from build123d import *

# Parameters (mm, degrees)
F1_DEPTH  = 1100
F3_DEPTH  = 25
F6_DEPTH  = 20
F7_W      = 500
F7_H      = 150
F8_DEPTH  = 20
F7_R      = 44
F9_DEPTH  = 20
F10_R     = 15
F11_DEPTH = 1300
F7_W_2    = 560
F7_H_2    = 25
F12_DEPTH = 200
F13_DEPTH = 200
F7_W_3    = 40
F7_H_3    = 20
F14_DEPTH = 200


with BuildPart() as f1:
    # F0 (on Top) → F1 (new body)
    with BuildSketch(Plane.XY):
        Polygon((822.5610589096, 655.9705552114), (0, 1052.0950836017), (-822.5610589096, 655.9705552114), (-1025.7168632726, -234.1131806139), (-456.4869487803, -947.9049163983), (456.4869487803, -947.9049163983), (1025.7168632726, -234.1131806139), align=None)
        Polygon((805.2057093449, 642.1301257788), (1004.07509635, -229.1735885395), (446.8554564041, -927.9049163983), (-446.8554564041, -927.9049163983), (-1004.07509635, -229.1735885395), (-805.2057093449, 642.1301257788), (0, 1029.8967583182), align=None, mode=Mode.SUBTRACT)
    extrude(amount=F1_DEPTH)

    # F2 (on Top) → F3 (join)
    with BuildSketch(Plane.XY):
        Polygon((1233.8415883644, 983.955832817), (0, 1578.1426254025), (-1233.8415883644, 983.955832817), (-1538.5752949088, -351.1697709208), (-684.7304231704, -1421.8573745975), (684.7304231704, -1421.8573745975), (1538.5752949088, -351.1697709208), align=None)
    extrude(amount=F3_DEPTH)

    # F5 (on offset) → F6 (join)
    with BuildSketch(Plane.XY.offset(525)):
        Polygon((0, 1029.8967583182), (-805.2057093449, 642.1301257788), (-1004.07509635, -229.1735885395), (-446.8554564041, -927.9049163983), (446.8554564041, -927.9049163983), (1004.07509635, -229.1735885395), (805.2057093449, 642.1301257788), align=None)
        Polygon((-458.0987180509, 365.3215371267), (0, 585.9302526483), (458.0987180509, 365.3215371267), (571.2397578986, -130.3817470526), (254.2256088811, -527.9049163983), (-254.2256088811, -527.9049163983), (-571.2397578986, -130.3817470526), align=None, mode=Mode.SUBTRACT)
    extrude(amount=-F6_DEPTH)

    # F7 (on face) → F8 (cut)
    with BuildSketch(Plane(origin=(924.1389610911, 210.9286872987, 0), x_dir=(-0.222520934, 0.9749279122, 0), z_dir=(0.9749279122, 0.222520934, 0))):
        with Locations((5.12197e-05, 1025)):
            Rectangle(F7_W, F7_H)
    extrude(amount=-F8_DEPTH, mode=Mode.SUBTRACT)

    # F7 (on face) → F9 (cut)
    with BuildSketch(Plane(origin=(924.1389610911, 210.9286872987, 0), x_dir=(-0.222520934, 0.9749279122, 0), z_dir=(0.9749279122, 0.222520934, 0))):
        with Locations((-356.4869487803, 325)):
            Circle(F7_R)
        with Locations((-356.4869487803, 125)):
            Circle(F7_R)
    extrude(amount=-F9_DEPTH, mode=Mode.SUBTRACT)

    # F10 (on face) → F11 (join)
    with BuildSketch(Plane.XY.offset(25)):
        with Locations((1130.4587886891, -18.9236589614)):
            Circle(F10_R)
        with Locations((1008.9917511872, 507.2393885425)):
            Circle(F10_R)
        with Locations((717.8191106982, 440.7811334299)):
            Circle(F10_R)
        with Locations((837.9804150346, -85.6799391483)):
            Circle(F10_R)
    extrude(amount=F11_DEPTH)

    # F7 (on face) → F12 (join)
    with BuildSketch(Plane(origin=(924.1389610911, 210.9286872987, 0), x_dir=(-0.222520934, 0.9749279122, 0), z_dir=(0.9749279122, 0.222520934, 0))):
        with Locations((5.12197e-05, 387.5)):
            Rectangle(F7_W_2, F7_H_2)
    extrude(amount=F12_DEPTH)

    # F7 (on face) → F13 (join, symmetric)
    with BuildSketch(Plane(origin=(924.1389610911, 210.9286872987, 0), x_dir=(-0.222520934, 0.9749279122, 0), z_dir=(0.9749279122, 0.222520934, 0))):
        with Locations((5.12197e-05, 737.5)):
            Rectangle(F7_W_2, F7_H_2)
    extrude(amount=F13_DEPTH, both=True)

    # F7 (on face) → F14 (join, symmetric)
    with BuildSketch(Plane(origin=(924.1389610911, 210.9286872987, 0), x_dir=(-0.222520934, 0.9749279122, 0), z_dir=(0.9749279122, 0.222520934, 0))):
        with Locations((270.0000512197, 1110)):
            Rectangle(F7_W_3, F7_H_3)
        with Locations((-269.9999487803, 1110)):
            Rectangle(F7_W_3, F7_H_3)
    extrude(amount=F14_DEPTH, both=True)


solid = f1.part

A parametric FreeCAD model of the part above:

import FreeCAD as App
import Part
import Sketcher

V = App.Vector

doc = App.newDocument("Part")
body = doc.addObject("PartDesign::Body", "Body")

# Sketch on XY plane
sketch1 = body.newObject("Sketcher::SketchObject", "Sketch")
sketch1.AttachmentSupport = (doc.getObject("XY_Plane"), [""])
sketch1.MapMode = "FlatFace"
sketch1.addGeometry([
    Part.LineSegment(V(823, 656, 0), V(0, 1052, 0)),  # 0
    Part.LineSegment(V(0, 1052, 0), V(-823, 656, 0)),  # 1
    Part.LineSegment(V(-823, 656, 0), V(-1026, -234, 0)),  # 2
    Part.LineSegment(V(-1026, -234, 0), V(-456, -948, 0)),  # 3
    Part.LineSegment(V(-456, -948, 0), V(456, -948, 0)),  # 4
    Part.LineSegment(V(456, -948, 0), V(1026, -234, 0)),  # 5
    Part.LineSegment(V(1026, -234, 0), V(823, 656, 0)),  # 6
    Part.LineSegment(V(0, 1030, 0), V(805, 642, 0)),  # 7
    Part.LineSegment(V(805, 642, 0), V(1004, -229, 0)),  # 8
    Part.LineSegment(V(1004, -229, 0), V(447, -928, 0)),  # 9
    Part.LineSegment(V(447, -928, 0), V(-447, -928, 0)),  # 10
    Part.LineSegment(V(-447, -928, 0), V(-1004, -229, 0)),  # 11
    Part.LineSegment(V(-1004, -229, 0), V(-805, 642, 0)),  # 12
    Part.LineSegment(V(-805, 642, 0), V(0, 1030, 0)),  # 13
], False)
sketch1.addConstraint([
    Sketcher.Constraint("Coincident", 0, 2, 1, 1),
    Sketcher.Constraint("Coincident", 1, 2, 2, 1),
    Sketcher.Constraint("Coincident", 2, 2, 3, 1),
    Sketcher.Constraint("Coincident", 3, 2, 4, 1),
    Sketcher.Constraint("Coincident", 4, 2, 5, 1),
    Sketcher.Constraint("Coincident", 5, 2, 6, 1),
    Sketcher.Constraint("Coincident", 6, 2, 0, 1),
    Sketcher.Constraint("Coincident", 7, 2, 8, 1),
    Sketcher.Constraint("Coincident", 8, 2, 9, 1),
    Sketcher.Constraint("Coincident", 9, 2, 10, 1),
    Sketcher.Constraint("Coincident", 10, 2, 11, 1),
    Sketcher.Constraint("Coincident", 11, 2, 12, 1),
    Sketcher.Constraint("Coincident", 12, 2, 13, 1),
    Sketcher.Constraint("Coincident", 13, 2, 7, 1),
    Sketcher.Constraint("Horizontal", 4),
    Sketcher.Constraint("Horizontal", 10),
    Sketcher.Constraint("Symmetric", 2, 2, 5, 2, -2),
    Sketcher.Constraint("Symmetric", 1, 2, 6, 2, -2),
    Sketcher.Constraint("Symmetric", 8, 2, 11, 2, -2),
    Sketcher.Constraint("Symmetric", 7, 2, 12, 2, -2),
    Sketcher.Constraint("PointOnObject", 0, 2, -2),
    Sketcher.Constraint("PointOnObject", 13, 2, -2),
    Sketcher.Constraint("Parallel", 0, 7),
    Sketcher.Constraint("Parallel", 6, 8),
    Sketcher.Constraint("Parallel", 5, 9),
    Sketcher.Constraint("Parallel", 3, 11),
    Sketcher.Constraint("Equal", 1, 2),
    Sketcher.Constraint("Equal", 2, 3),
    Sketcher.Constraint("Equal", 3, 5),
    Sketcher.Constraint("Equal", 7, 8),
    Sketcher.Constraint("Equal", 8, 9),
    Sketcher.Constraint("DistanceY", 3, 2, 0, 2, 2000.0),
    Sketcher.Constraint("DistanceY", 4, 2, 9, 2, 20.0),
    Sketcher.Constraint("DistanceX", 4, 1, 4, 2, 912.973898),
    Sketcher.Constraint("DistanceX", 10, 2, 10, 1, 893.710913),
    Sketcher.Constraint("DistanceX", 1, 2, -1, 1, 822.561059),
    Sketcher.Constraint("DistanceY", 2, 2, -1, 1, 234.113181),
    Sketcher.Constraint("DistanceY", 8, 2, -1, 1, 229.173589),
])
pad1 = body.newObject("PartDesign::Pad", "Pad")
pad1.Profile = sketch1
pad1.Length = 1100

# Sketch on XY plane
sketch2 = body.newObject("Sketcher::SketchObject", "Sketch001")
sketch2.AttachmentSupport = (doc.getObject("XY_Plane"), [""])
sketch2.MapMode = "FlatFace"
sketch2.addGeometry([
    Part.LineSegment(V(1234, 984, 0), V(0, 1578, 0)),  # 0
    Part.LineSegment(V(0, 1578, 0), V(-1234, 984, 0)),  # 1
    Part.LineSegment(V(-1234, 984, 0), V(-1539, -351, 0)),  # 2
    Part.LineSegment(V(-1539, -351, 0), V(-685, -1422, 0)),  # 3
    Part.LineSegment(V(-685, -1422, 0), V(685, -1422, 0)),  # 4
    Part.LineSegment(V(685, -1422, 0), V(1539, -351, 0)),  # 5
    Part.LineSegment(V(1539, -351, 0), V(1234, 984, 0)),  # 6
], False)
sketch2.addConstraint([
    Sketcher.Constraint("Coincident", 0, 2, 1, 1),
    Sketcher.Constraint("Coincident", 1, 2, 2, 1),
    Sketcher.Constraint("Coincident", 2, 2, 3, 1),
    Sketcher.Constraint("Coincident", 3, 2, 4, 1),
    Sketcher.Constraint("Coincident", 4, 2, 5, 1),
    Sketcher.Constraint("Coincident", 5, 2, 6, 1),
    Sketcher.Constraint("Coincident", 6, 2, 0, 1),
    Sketcher.Constraint("Horizontal", 4),
    Sketcher.Constraint("Symmetric", 2, 2, 5, 2, -2),
    Sketcher.Constraint("Symmetric", 1, 2, 6, 2, -2),
    Sketcher.Constraint("PointOnObject", 0, 2, -2),
    Sketcher.Constraint("Equal", 1, 2),
    Sketcher.Constraint("Equal", 2, 3),
    Sketcher.Constraint("Equal", 3, 5),
    Sketcher.Constraint("DistanceY", 3, 2, 0, 2, 3000.0),
    Sketcher.Constraint("DistanceX", 4, 1, 4, 2, 1369.460846),
    Sketcher.Constraint("DistanceX", 1, 2, -1, 1, 1233.841588),
    Sketcher.Constraint("DistanceY", 2, 2, -1, 1, 351.169771),
    Sketcher.Constraint("DistanceX", 2, 2, 3, 2, 853.844872),
])
pad2 = body.newObject("PartDesign::Pad", "Pad001")
pad2.Profile = sketch2
pad2.Length = 25

# Sketch on XY plane
sketch3 = body.newObject("Sketcher::SketchObject", "Sketch002")
sketch3.AttachmentSupport = (doc.getObject("XY_Plane"), [""])
sketch3.MapMode = "FlatFace"
sketch3.AttachmentOffset = App.Placement(V(0, 0, 525), App.Rotation())
sketch3.addGeometry([
    Part.LineSegment(V(0, 1030, 0), V(-805, 642, 0)),  # 0
    Part.LineSegment(V(-805, 642, 0), V(-1004, -229, 0)),  # 1
    Part.LineSegment(V(-1004, -229, 0), V(-447, -928, 0)),  # 2
    Part.LineSegment(V(-447, -928, 0), V(447, -928, 0)),  # 3
    Part.LineSegment(V(447, -928, 0), V(1004, -229, 0)),  # 4
    Part.LineSegment(V(1004, -229, 0), V(805, 642, 0)),  # 5
    Part.LineSegment(V(805, 642, 0), V(0, 1030, 0)),  # 6
    Part.LineSegment(V(-571, -130, 0), V(-458, 365, 0)),  # 7
    Part.LineSegment(V(-458, 365, 0), V(0, 586, 0)),  # 8
    Part.LineSegment(V(0, 586, 0), V(458, 365, 0)),  # 9
    Part.LineSegment(V(458, 365, 0), V(571, -130, 0)),  # 10
    Part.LineSegment(V(571, -130, 0), V(254, -528, 0)),  # 11
    Part.LineSegment(V(254, -528, 0), V(-254, -528, 0)),  # 12
    Part.LineSegment(V(-254, -528, 0), V(-571, -130, 0)),  # 13
], False)
sketch3.addConstraint([
    Sketcher.Constraint("Coincident", 0, 2, 1, 1),
    Sketcher.Constraint("Coincident", 1, 2, 2, 1),
    Sketcher.Constraint("Coincident", 2, 2, 3, 1),
    Sketcher.Constraint("Coincident", 3, 2, 4, 1),
    Sketcher.Constraint("Coincident", 4, 2, 5, 1),
    Sketcher.Constraint("Coincident", 5, 2, 6, 1),
    Sketcher.Constraint("Coincident", 6, 2, 0, 1),
    Sketcher.Constraint("Coincident", 7, 2, 8, 1),
    Sketcher.Constraint("Coincident", 8, 2, 9, 1),
    Sketcher.Constraint("Coincident", 9, 2, 10, 1),
    Sketcher.Constraint("Coincident", 10, 2, 11, 1),
    Sketcher.Constraint("Coincident", 11, 2, 12, 1),
    Sketcher.Constraint("Coincident", 12, 2, 13, 1),
    Sketcher.Constraint("Coincident", 13, 2, 7, 1),
    Sketcher.Constraint("Horizontal", 3),
    Sketcher.Constraint("Horizontal", 12),
    Sketcher.Constraint("Symmetric", 1, 2, 4, 2, -2),
    Sketcher.Constraint("Symmetric", 0, 2, 5, 2, -2),
    Sketcher.Constraint("Symmetric", 7, 2, 9, 2, -2),
    Sketcher.Constraint("Symmetric", 10, 2, 13, 2, -2),
    Sketcher.Constraint("PointOnObject", 6, 2, -2),
    Sketcher.Constraint("PointOnObject", 8, 2, -2),
    Sketcher.Constraint("Parallel", 1, 7),
    Sketcher.Constraint("Parallel", 0, 8),
    Sketcher.Constraint("Parallel", 4, 11),
    Sketcher.Constraint("Parallel", 2, 13),
    Sketcher.Constraint("Equal", 0, 1),
    Sketcher.Constraint("Equal", 1, 2),
    Sketcher.Constraint("Equal", 2, 4),
    Sketcher.Constraint("Equal", 7, 8),
    Sketcher.Constraint("Equal", 10, 11),
    Sketcher.Constraint("DistanceY", 3, 2, 11, 2, 400.0),
    Sketcher.Constraint("DistanceY", 10, 2, 8, 2, 716.312),
    Sketcher.Constraint("DistanceX", 3, 2, 10, 2, 124.384301),
    Sketcher.Constraint("DistanceX", 3, 1, 3, 2, 893.710913),
    Sketcher.Constraint("DistanceX", 12, 2, 12, 1, 508.451218),
    Sketcher.Constraint("DistanceX", 0, 2, -1, 1, 805.205709),
    Sketcher.Constraint("DistanceY", 1, 2, -1, 1, 229.173589),
])
pad3 = body.newObject("PartDesign::Pad", "Pad002")
pad3.Profile = sketch3
pad3.Length = 20
pad3.Reversed = True

# Sketch on an angled plane
sketch4 = body.newObject("Sketcher::SketchObject", "Sketch003")
sketch4.Placement = App.Placement(V(924.138961, 210.928687, 0), App.Rotation(V(-0.222520934, 0.974927912, 0), V(0, 0, 1), V(0.974927912, 0.222520934, 0), "ZXY"))
sketch4.addGeometry([
    Part.LineSegment(V(-249.999949, 1099.999999, 0), V(-249.999949, 949.999999, 0)),
    Part.LineSegment(V(-249.999949, 949.999999, 0), V(250.000051, 949.999999, 0)),
    Part.LineSegment(V(250.000051, 949.999999, 0), V(250.000051, 1099.999999, 0)),
    Part.LineSegment(V(250.000051, 1099.999999, 0), V(-249.999949, 1099.999999, 0)),
], False)
sketch4.addConstraint([
    Sketcher.Constraint("Coincident", 0, 2, 1, 1),
    Sketcher.Constraint("Coincident", 1, 2, 2, 1),
    Sketcher.Constraint("Coincident", 2, 2, 3, 1),
    Sketcher.Constraint("Coincident", 3, 2, 0, 1),
    Sketcher.Constraint("Vertical", 0),
    Sketcher.Constraint("Horizontal", 1),
    Sketcher.Constraint("Vertical", 2),
    Sketcher.Constraint("Horizontal", 3),
    Sketcher.Constraint("DistanceX", 1, 1, 1, 2, 500.0),
    Sketcher.Constraint("DistanceY", 0, 2, 0, 1, 150.0),
    Sketcher.Constraint("DistanceY", -1, 1, 0, 2, 949.999999),
    Sketcher.Constraint("DistanceX", 0, 2, -1, 1, 249.999949),
])
pocket1 = body.newObject("PartDesign::Pocket", "Pocket")
pocket1.Profile = sketch4
pocket1.Length = 20

# Sketch on an angled plane
sketch5 = body.newObject("Sketcher::SketchObject", "Sketch004")
sketch5.Placement = App.Placement(V(924.138961, 210.928687, 0), App.Rotation(V(-0.222520934, 0.974927912, 0), V(0, 0, 1), V(0.974927912, 0.222520934, 0), "ZXY"))
sketch5.addGeometry([
    Part.Circle(V(-356, 325, 0), V(0, 0, 1), 44),
    Part.Circle(V(-356, 125, 0), V(0, 0, 1), 44),
], False)
sketch5.addConstraint([
    Sketcher.Constraint("Equal", 0, 1),
    Sketcher.Constraint("Vertical", 0, 3, 1, 3),
    Sketcher.Constraint("Diameter", 0, 88.0),
    Sketcher.Constraint("DistanceY", -1, 1, 0, 3, 325.0),
    Sketcher.Constraint("DistanceY", -1, 1, 1, 3, 125.0),
    Sketcher.Constraint("DistanceX", 0, 3, -1, 1, 356.486949),
])
pocket2 = body.newObject("PartDesign::Pocket", "Pocket001")
pocket2.Profile = sketch5
pocket2.Length = 20

# Sketch on XY plane
sketch6 = body.newObject("Sketcher::SketchObject", "Sketch005")
sketch6.AttachmentSupport = (doc.getObject("XY_Plane"), [""])
sketch6.MapMode = "FlatFace"
sketch6.AttachmentOffset = App.Placement(V(0, 0, 25), App.Rotation())
sketch6.addGeometry([
    Part.Circle(V(1130, -19, 0), V(0, 0, 1), 15),
    Part.Circle(V(1009, 507, 0), V(0, 0, 1), 15),
    Part.Circle(V(718, 441, 0), V(0, 0, 1), 15),
    Part.Circle(V(838, -86, 0), V(0, 0, 1), 15),
], False)
sketch6.addConstraint([
    Sketcher.Constraint("Equal", 0, 1),
    Sketcher.Constraint("Equal", 1, 2),
    Sketcher.Constraint("Equal", 2, 3),
    Sketcher.Constraint("Diameter", 0, 30.0),
    Sketcher.Constraint("DistanceX", -1, 1, 0, 3, 1130.458789),
    Sketcher.Constraint("DistanceY", 0, 3, -1, 1, 18.923659),
    Sketcher.Constraint("DistanceX", -1, 1, 1, 3, 1008.991751),
    Sketcher.Constraint("DistanceY", -1, 1, 1, 3, 507.239389),
    Sketcher.Constraint("DistanceX", -1, 1, 2, 3, 717.819111),
    Sketcher.Constraint("DistanceY", 3, 3, -1, 1, 85.679939),
    Sketcher.Constraint("DistanceY", -1, 1, 2, 3, 440.781133),
    Sketcher.Constraint("DistanceX", -1, 1, 3, 3, 837.980415),
])
pad4 = body.newObject("PartDesign::Pad", "Pad003")
pad4.Profile = sketch6
pad4.Length = 1300

# Sketch on an angled plane
sketch7 = body.newObject("Sketcher::SketchObject", "Sketch006")
sketch7.Placement = App.Placement(V(924.138961, 210.928687, 0), App.Rotation(V(-0.222520934, 0.974927912, 0), V(0, 0, 1), V(0.974927912, 0.222520934, 0), "ZXY"))
sketch7.addGeometry([
    Part.LineSegment(V(-279.999949, 400, 0), V(-279.999949, 375, 0)),
    Part.LineSegment(V(-279.999949, 375, 0), V(280.000051, 375, 0)),
    Part.LineSegment(V(280.000051, 375, 0), V(280.000051, 400, 0)),
    Part.LineSegment(V(280.000051, 400, 0), V(-279.999949, 400, 0)),
], False)
sketch7.addConstraint([
    Sketcher.Constraint("Coincident", 0, 2, 1, 1),
    Sketcher.Constraint("Coincident", 1, 2, 2, 1),
    Sketcher.Constraint("Coincident", 2, 2, 3, 1),
    Sketcher.Constraint("Coincident", 3, 2, 0, 1),
    Sketcher.Constraint("Vertical", 0),
    Sketcher.Constraint("Horizontal", 1),
    Sketcher.Constraint("Vertical", 2),
    Sketcher.Constraint("Horizontal", 3),
    Sketcher.Constraint("DistanceX", 1, 1, 1, 2, 560.0),
    Sketcher.Constraint("DistanceY", 0, 2, 0, 1, 25.0),
    Sketcher.Constraint("DistanceY", -1, 1, 0, 2, 375.0),
    Sketcher.Constraint("DistanceX", 0, 2, -1, 1, 279.999949),
])
pad5 = body.newObject("PartDesign::Pad", "Pad004")
pad5.Profile = sketch7
pad5.Length = 200

# Sketch on an angled plane
sketch8 = body.newObject("Sketcher::SketchObject", "Sketch007")
sketch8.Placement = App.Placement(V(924.138961, 210.928687, 0), App.Rotation(V(-0.222520934, 0.974927912, 0), V(0, 0, 1), V(0.974927912, 0.222520934, 0), "ZXY"))
sketch8.addGeometry([
    Part.LineSegment(V(-279.999949, 749.999999, 0), V(-279.999949, 725, 0)),
    Part.LineSegment(V(-279.999949, 725, 0), V(280.000051, 725, 0)),
    Part.LineSegment(V(280.000051, 725, 0), V(280.000051, 749.999999, 0)),
    Part.LineSegment(V(280.000051, 749.999999, 0), V(-279.999949, 749.999999, 0)),
], False)
sketch8.addConstraint([
    Sketcher.Constraint("Coincident", 0, 2, 1, 1),
    Sketcher.Constraint("Coincident", 1, 2, 2, 1),
    Sketcher.Constraint("Coincident", 2, 2, 3, 1),
    Sketcher.Constraint("Coincident", 3, 2, 0, 1),
    Sketcher.Constraint("Vertical", 0),
    Sketcher.Constraint("Horizontal", 1),
    Sketcher.Constraint("Vertical", 2),
    Sketcher.Constraint("Horizontal", 3),
    Sketcher.Constraint("DistanceX", 1, 1, 1, 2, 560.0),
    Sketcher.Constraint("DistanceY", 0, 2, 0, 1, 25.0),
    Sketcher.Constraint("DistanceY", -1, 1, 0, 2, 725.0),
    Sketcher.Constraint("DistanceX", 0, 2, -1, 1, 279.999949),
])
pad6 = body.newObject("PartDesign::Pad", "Pad005")
pad6.Profile = sketch8
pad6.Length = 400
pad6.Midplane = True

# Sketch on an angled plane
sketch9 = body.newObject("Sketcher::SketchObject", "Sketch008")
sketch9.Placement = App.Placement(V(924.138961, 210.928687, 0), App.Rotation(V(-0.222520934, 0.974927912, 0), V(0, 0, 1), V(0.974927912, 0.222520934, 0), "ZXY"))
sketch9.addGeometry([
    Part.LineSegment(V(250.000051, 1119.999999, 0), V(250.000051, 1099.999999, 0)),  # 0
    Part.LineSegment(V(250.000051, 1099.999999, 0), V(290.000051, 1099.999999, 0)),  # 1
    Part.LineSegment(V(290.000051, 1099.999999, 0), V(290.000051, 1119.999999, 0)),  # 2
    Part.LineSegment(V(290.000051, 1119.999999, 0), V(250.000051, 1119.999999, 0)),  # 3
    Part.LineSegment(V(-289.999949, 1119.999999, 0), V(-289.999949, 1099.999999, 0)),  # 4
    Part.LineSegment(V(-289.999949, 1099.999999, 0), V(-249.999949, 1099.999999, 0)),  # 5
    Part.LineSegment(V(-249.999949, 1099.999999, 0), V(-249.999949, 1119.999999, 0)),  # 6
    Part.LineSegment(V(-249.999949, 1119.999999, 0), V(-289.999949, 1119.999999, 0)),  # 7
], False)
sketch9.addConstraint([
    Sketcher.Constraint("Coincident", 0, 2, 1, 1),
    Sketcher.Constraint("Coincident", 1, 2, 2, 1),
    Sketcher.Constraint("Coincident", 2, 2, 3, 1),
    Sketcher.Constraint("Coincident", 3, 2, 0, 1),
    Sketcher.Constraint("Coincident", 4, 2, 5, 1),
    Sketcher.Constraint("Coincident", 5, 2, 6, 1),
    Sketcher.Constraint("Coincident", 6, 2, 7, 1),
    Sketcher.Constraint("Coincident", 7, 2, 4, 1),
    Sketcher.Constraint("Vertical", 0),
    Sketcher.Constraint("Horizontal", 1),
    Sketcher.Constraint("Vertical", 2),
    Sketcher.Constraint("Horizontal", 3),
    Sketcher.Constraint("Vertical", 4),
    Sketcher.Constraint("Horizontal", 5),
    Sketcher.Constraint("Vertical", 6),
    Sketcher.Constraint("Horizontal", 7),
    Sketcher.Constraint("Horizontal", 1, 2, 4, 2),
    Sketcher.Constraint("Horizontal", 3, 2, 6, 2),
    Sketcher.Constraint("Equal", 3, 5),
    Sketcher.Constraint("DistanceX", 1, 1, 1, 2, 40.0),
    Sketcher.Constraint("DistanceY", 0, 2, 0, 1, 20.0),
    Sketcher.Constraint("DistanceY", -1, 1, 0, 2, 1099.999999),
    Sketcher.Constraint("DistanceX", 4, 2, 0, 2, 540.0),
    Sketcher.Constraint("DistanceX", -1, 1, 0, 2, 250.000051),
])
pad7 = body.newObject("PartDesign::Pad", "Pad006")
pad7.Profile = sketch9
pad7.Length = 400
pad7.Midplane = True

doc.recompute()
